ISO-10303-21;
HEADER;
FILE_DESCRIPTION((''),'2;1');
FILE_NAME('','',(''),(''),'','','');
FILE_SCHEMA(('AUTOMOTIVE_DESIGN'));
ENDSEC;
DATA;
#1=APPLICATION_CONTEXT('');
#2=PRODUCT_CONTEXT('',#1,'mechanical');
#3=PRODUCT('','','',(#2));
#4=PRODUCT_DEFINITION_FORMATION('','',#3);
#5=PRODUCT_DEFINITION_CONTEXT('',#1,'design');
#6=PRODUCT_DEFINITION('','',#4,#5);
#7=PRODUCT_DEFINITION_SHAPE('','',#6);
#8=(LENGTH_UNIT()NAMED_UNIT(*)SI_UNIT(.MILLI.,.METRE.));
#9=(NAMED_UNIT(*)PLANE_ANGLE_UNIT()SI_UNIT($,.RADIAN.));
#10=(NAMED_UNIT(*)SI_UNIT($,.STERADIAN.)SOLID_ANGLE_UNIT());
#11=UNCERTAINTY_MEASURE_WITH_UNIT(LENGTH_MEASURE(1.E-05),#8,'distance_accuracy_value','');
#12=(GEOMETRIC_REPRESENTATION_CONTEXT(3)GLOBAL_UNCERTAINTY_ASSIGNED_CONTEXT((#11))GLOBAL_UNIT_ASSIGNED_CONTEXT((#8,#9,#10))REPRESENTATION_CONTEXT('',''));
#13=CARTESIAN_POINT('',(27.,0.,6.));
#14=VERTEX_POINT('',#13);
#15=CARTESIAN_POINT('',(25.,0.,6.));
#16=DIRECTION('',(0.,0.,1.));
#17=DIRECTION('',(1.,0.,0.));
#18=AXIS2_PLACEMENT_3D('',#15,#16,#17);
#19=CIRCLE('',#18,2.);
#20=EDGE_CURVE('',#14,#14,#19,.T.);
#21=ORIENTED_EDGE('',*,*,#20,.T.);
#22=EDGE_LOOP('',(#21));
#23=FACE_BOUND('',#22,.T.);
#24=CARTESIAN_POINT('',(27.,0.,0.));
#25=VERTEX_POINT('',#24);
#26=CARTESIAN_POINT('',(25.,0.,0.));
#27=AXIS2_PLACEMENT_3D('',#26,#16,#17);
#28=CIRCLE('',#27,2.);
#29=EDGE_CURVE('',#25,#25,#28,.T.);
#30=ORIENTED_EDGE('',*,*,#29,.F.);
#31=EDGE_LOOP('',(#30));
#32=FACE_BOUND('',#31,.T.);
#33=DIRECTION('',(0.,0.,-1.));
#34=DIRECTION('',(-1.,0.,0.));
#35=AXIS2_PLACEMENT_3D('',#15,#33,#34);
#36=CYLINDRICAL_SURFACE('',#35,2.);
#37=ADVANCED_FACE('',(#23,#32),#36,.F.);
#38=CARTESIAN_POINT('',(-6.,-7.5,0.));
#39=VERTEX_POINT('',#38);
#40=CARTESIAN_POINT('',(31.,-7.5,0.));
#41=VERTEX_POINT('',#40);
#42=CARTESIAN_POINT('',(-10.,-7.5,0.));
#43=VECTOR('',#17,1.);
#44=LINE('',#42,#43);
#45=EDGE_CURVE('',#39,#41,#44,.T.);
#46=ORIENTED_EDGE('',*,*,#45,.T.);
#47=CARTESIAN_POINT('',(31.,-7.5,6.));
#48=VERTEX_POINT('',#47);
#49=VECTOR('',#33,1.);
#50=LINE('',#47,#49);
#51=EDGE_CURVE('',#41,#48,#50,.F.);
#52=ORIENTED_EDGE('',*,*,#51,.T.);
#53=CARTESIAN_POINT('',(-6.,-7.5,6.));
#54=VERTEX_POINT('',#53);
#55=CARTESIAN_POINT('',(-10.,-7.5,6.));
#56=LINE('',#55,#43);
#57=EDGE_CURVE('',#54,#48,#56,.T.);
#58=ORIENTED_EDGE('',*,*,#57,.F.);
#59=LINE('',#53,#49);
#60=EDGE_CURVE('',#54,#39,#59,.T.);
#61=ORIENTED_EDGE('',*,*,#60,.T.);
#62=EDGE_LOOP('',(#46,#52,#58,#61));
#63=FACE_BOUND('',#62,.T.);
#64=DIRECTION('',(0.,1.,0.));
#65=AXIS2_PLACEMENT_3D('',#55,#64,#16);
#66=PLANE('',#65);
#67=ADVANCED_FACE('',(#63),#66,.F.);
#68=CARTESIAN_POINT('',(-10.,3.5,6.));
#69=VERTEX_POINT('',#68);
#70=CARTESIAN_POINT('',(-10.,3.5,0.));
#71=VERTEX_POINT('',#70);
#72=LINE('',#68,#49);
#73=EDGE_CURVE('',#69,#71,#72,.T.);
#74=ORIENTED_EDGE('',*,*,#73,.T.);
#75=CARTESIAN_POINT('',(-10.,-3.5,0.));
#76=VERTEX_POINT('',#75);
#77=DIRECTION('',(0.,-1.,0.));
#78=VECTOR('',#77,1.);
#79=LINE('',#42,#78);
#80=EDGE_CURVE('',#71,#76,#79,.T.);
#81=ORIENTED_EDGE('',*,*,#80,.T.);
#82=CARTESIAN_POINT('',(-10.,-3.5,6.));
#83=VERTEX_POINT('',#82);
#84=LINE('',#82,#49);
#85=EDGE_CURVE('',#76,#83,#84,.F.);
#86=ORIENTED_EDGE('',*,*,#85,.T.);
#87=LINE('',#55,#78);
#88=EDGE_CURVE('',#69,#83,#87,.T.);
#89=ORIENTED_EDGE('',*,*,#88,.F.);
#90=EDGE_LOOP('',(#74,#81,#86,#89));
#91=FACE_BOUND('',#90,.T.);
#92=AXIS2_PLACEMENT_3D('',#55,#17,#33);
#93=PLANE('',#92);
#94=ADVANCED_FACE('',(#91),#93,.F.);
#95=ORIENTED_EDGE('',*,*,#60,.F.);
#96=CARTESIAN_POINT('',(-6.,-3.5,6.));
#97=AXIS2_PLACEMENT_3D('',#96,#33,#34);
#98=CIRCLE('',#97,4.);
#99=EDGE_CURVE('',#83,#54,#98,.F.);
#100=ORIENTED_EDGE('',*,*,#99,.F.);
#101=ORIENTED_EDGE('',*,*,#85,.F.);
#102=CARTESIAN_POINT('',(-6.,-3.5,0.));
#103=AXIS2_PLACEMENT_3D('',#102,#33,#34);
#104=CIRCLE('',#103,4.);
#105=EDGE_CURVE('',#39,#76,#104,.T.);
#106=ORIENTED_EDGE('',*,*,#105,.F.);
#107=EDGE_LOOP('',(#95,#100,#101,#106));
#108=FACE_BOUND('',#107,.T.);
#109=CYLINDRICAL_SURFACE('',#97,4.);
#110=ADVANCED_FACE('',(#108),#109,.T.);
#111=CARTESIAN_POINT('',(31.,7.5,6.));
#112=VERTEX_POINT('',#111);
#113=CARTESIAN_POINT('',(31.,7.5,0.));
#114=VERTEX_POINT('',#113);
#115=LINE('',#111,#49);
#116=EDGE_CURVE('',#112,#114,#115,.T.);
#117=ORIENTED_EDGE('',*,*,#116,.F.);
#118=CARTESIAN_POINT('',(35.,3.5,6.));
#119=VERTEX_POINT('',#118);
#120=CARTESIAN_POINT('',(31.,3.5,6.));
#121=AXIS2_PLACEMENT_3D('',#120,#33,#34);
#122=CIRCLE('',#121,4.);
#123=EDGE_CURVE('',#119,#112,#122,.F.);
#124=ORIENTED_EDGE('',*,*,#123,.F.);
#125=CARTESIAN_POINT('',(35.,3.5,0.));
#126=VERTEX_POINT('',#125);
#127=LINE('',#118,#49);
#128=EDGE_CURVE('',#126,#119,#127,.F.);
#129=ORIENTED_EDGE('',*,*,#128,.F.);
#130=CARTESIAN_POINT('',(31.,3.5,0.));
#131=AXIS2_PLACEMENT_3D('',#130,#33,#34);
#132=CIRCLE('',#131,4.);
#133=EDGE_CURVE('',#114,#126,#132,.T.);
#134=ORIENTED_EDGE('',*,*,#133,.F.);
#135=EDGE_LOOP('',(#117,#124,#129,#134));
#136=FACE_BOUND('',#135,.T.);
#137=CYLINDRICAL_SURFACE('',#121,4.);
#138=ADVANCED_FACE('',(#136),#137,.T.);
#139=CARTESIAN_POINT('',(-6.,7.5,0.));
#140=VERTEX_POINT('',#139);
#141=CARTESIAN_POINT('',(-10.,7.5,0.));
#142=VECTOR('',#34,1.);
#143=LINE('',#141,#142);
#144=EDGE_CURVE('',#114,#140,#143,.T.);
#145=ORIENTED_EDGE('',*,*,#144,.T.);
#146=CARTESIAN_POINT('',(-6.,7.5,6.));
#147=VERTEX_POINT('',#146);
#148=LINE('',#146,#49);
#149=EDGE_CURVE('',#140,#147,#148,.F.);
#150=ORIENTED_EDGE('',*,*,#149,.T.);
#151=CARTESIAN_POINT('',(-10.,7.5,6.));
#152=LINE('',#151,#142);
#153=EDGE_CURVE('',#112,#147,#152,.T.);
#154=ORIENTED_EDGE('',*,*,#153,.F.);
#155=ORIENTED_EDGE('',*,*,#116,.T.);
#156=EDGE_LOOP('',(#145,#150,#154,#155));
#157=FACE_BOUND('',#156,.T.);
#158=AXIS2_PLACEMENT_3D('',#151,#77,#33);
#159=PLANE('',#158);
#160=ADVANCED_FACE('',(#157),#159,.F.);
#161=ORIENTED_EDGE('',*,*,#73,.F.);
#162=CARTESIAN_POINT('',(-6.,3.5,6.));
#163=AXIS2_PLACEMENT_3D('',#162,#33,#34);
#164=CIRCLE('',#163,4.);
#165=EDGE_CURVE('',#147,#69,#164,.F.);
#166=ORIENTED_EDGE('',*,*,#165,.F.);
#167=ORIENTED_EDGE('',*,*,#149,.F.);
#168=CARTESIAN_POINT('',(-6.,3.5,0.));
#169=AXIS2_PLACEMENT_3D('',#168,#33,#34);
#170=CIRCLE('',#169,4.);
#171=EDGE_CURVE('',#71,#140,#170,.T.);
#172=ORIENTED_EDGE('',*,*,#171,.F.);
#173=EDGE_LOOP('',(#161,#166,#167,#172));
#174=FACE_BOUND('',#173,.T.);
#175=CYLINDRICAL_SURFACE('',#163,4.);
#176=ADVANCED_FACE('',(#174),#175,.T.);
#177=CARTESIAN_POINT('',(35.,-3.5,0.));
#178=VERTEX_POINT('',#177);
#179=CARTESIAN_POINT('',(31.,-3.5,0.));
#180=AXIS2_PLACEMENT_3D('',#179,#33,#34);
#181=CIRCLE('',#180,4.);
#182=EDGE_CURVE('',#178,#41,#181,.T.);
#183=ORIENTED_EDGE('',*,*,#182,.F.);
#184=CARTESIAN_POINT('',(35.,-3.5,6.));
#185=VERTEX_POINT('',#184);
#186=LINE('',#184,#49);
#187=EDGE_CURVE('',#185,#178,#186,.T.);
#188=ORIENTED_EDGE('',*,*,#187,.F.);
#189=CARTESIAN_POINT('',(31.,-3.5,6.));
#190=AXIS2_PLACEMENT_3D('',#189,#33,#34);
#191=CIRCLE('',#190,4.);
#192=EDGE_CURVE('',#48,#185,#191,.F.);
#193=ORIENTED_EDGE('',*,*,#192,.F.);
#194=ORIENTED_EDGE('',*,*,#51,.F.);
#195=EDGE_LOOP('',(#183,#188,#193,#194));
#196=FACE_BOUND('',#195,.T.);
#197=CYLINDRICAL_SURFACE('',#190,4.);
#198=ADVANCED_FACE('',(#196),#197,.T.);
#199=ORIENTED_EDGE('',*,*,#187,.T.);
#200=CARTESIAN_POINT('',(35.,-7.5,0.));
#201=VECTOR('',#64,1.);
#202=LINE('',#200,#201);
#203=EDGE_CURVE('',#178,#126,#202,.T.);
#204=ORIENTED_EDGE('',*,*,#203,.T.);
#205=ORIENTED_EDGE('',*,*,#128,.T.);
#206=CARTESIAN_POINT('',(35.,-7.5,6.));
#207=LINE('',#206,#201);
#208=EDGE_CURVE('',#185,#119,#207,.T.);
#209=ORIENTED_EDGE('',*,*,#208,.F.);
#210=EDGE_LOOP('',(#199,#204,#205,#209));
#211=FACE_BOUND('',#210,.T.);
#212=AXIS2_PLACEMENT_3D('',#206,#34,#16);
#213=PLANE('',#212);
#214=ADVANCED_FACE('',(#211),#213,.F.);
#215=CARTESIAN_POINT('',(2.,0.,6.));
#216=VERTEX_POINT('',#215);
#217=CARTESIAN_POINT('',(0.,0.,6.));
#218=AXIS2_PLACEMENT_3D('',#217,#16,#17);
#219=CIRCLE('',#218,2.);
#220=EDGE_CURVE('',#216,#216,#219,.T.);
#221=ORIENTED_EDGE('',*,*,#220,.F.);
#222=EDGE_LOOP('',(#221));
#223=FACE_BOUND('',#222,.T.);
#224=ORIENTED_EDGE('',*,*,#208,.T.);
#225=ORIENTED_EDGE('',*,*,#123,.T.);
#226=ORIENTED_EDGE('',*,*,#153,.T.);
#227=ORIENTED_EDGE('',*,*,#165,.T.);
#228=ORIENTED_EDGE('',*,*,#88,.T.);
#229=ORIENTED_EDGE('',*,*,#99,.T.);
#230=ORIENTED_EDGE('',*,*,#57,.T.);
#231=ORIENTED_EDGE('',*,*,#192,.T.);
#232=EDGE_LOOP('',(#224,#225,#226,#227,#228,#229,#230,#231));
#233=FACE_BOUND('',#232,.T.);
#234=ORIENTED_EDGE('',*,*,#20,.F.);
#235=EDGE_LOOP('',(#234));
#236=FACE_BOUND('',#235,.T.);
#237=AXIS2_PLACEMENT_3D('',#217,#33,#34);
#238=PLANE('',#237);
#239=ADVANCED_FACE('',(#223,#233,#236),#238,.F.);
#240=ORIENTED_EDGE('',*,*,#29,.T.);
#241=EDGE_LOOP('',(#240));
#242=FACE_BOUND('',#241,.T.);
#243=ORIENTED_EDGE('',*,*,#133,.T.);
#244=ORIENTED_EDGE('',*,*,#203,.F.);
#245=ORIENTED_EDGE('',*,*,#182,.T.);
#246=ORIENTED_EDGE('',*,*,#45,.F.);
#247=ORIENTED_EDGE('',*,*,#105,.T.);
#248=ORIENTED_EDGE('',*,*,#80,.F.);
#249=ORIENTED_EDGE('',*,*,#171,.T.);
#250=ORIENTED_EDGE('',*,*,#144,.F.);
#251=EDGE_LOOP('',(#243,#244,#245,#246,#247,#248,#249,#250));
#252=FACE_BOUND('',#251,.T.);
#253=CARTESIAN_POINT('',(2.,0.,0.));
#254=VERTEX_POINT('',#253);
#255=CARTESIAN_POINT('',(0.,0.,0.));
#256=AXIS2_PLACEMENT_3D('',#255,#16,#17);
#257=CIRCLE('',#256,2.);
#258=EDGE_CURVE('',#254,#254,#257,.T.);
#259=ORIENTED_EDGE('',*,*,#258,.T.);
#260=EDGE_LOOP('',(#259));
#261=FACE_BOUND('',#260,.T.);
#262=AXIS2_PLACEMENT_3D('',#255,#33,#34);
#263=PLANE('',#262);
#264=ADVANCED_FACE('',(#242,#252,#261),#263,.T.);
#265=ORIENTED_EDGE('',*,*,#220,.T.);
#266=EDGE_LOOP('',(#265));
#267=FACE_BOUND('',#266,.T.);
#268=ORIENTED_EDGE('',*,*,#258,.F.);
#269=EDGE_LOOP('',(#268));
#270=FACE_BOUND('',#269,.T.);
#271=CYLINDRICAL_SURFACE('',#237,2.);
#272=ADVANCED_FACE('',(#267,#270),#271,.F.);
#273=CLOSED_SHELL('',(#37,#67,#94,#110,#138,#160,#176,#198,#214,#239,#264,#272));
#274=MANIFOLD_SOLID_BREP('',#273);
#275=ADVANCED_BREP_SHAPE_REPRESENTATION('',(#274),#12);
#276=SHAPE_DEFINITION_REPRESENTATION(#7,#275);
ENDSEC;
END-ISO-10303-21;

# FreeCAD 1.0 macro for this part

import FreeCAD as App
import Part
import Sketcher
from FreeCAD import Vector


def edges_at(feature, points):
    """Names of the edges that pass closest to the given points."""
    edges = feature.Shape.Edges
    near = lambda p: min(range(len(edges)), key=lambda i: edges[i].distToShape(Part.Vertex(*p))[0])
    return sorted({f"Edge{near(p) + 1}" for p in points})

doc = App.newDocument("Part")
body = doc.addObject("PartDesign::Body", "Body")

sketch1 = body.newObject("Sketcher::SketchObject", "Sketch")
sketch1.AttachmentSupport = (doc.getObject("XY_Plane"), [""])
sketch1.MapMode = "FlatFace"
sketch1.addGeometry(Part.LineSegment(Vector(-10, 7.5, 0), Vector(-10, -7.5, 0)), False)
sketch1.addGeometry(Part.LineSegment(Vector(-10, -7.5, 0), Vector(35, -7.5, 0)), False)
sketch1.addGeometry(Part.LineSegment(Vector(35, -7.5, 0), Vector(35, 7.5, 0)), False)
sketch1.addGeometry(Part.LineSegment(Vector(35, 7.5, 0), Vector(-10, 7.5, 0)), False)
sketch1.addGeometry(Part.Circle(Vector(0, 0, 0), Vector(0, 0, 1), 2), False)
sketch1.addGeometry(Part.Circle(Vector(25, 0, 0), Vector(0, 0, 1), 2), False)
sketch1.addConstraint(Sketcher.Constraint("Coincident", 0, 2, 1, 1))
sketch1.addConstraint(Sketcher.Constraint("Coincident", 1, 2, 2, 1))
sketch1.addConstraint(Sketcher.Constraint("Coincident", 2, 2, 3, 1))
sketch1.addConstraint(Sketcher.Constraint("Coincident", 3, 2, 0, 1))
sketch1.addConstraint(Sketcher.Constraint("Vertical", 0))
sketch1.addConstraint(Sketcher.Constraint("Horizontal", 1))
sketch1.addConstraint(Sketcher.Constraint("Vertical", 2))
sketch1.addConstraint(Sketcher.Constraint("Horizontal", 3))
sketch1.addConstraint(Sketcher.Constraint("Coincident", 4, 3, -1, 1))
sketch1.addConstraint(Sketcher.Constraint("Equal", 4, 5))
sketch1.addConstraint(Sketcher.Constraint("PointOnObject", 5, 3, -1))
sketch1.addConstraint(Sketcher.Constraint("Diameter", 4, 4.0))
sketch1.addConstraint(Sketcher.Constraint("DistanceX", 1, 1, 1, 2, 45.0))
sketch1.addConstraint(Sketcher.Constraint("DistanceY", 0, 2, 0, 1, 15.0))
sketch1.addConstraint(Sketcher.Constraint("DistanceX", -1, 1, 5, 3, 25.0))
sketch1.addConstraint(Sketcher.Constraint("DistanceX", 0, 2, -1, 1, 10.0))
sketch1.addConstraint(Sketcher.Constraint("DistanceY", 0, 2, -1, 1, 7.5))
pad1 = body.newObject("PartDesign::Pad", "Pad")
pad1.Profile = sketch1
pad1.Length = 6
doc.recompute()

fillet = body.newObject("PartDesign::Fillet", "Fillet")
fillet.Base = (pad1, edges_at(pad1, [
    (-10, 7.5, 3),
    (35, 7.5, 3),
    (35, -7.5, 3),
    (-10, -7.5, 3),
]))
fillet.Radius = 4

doc.recompute()
